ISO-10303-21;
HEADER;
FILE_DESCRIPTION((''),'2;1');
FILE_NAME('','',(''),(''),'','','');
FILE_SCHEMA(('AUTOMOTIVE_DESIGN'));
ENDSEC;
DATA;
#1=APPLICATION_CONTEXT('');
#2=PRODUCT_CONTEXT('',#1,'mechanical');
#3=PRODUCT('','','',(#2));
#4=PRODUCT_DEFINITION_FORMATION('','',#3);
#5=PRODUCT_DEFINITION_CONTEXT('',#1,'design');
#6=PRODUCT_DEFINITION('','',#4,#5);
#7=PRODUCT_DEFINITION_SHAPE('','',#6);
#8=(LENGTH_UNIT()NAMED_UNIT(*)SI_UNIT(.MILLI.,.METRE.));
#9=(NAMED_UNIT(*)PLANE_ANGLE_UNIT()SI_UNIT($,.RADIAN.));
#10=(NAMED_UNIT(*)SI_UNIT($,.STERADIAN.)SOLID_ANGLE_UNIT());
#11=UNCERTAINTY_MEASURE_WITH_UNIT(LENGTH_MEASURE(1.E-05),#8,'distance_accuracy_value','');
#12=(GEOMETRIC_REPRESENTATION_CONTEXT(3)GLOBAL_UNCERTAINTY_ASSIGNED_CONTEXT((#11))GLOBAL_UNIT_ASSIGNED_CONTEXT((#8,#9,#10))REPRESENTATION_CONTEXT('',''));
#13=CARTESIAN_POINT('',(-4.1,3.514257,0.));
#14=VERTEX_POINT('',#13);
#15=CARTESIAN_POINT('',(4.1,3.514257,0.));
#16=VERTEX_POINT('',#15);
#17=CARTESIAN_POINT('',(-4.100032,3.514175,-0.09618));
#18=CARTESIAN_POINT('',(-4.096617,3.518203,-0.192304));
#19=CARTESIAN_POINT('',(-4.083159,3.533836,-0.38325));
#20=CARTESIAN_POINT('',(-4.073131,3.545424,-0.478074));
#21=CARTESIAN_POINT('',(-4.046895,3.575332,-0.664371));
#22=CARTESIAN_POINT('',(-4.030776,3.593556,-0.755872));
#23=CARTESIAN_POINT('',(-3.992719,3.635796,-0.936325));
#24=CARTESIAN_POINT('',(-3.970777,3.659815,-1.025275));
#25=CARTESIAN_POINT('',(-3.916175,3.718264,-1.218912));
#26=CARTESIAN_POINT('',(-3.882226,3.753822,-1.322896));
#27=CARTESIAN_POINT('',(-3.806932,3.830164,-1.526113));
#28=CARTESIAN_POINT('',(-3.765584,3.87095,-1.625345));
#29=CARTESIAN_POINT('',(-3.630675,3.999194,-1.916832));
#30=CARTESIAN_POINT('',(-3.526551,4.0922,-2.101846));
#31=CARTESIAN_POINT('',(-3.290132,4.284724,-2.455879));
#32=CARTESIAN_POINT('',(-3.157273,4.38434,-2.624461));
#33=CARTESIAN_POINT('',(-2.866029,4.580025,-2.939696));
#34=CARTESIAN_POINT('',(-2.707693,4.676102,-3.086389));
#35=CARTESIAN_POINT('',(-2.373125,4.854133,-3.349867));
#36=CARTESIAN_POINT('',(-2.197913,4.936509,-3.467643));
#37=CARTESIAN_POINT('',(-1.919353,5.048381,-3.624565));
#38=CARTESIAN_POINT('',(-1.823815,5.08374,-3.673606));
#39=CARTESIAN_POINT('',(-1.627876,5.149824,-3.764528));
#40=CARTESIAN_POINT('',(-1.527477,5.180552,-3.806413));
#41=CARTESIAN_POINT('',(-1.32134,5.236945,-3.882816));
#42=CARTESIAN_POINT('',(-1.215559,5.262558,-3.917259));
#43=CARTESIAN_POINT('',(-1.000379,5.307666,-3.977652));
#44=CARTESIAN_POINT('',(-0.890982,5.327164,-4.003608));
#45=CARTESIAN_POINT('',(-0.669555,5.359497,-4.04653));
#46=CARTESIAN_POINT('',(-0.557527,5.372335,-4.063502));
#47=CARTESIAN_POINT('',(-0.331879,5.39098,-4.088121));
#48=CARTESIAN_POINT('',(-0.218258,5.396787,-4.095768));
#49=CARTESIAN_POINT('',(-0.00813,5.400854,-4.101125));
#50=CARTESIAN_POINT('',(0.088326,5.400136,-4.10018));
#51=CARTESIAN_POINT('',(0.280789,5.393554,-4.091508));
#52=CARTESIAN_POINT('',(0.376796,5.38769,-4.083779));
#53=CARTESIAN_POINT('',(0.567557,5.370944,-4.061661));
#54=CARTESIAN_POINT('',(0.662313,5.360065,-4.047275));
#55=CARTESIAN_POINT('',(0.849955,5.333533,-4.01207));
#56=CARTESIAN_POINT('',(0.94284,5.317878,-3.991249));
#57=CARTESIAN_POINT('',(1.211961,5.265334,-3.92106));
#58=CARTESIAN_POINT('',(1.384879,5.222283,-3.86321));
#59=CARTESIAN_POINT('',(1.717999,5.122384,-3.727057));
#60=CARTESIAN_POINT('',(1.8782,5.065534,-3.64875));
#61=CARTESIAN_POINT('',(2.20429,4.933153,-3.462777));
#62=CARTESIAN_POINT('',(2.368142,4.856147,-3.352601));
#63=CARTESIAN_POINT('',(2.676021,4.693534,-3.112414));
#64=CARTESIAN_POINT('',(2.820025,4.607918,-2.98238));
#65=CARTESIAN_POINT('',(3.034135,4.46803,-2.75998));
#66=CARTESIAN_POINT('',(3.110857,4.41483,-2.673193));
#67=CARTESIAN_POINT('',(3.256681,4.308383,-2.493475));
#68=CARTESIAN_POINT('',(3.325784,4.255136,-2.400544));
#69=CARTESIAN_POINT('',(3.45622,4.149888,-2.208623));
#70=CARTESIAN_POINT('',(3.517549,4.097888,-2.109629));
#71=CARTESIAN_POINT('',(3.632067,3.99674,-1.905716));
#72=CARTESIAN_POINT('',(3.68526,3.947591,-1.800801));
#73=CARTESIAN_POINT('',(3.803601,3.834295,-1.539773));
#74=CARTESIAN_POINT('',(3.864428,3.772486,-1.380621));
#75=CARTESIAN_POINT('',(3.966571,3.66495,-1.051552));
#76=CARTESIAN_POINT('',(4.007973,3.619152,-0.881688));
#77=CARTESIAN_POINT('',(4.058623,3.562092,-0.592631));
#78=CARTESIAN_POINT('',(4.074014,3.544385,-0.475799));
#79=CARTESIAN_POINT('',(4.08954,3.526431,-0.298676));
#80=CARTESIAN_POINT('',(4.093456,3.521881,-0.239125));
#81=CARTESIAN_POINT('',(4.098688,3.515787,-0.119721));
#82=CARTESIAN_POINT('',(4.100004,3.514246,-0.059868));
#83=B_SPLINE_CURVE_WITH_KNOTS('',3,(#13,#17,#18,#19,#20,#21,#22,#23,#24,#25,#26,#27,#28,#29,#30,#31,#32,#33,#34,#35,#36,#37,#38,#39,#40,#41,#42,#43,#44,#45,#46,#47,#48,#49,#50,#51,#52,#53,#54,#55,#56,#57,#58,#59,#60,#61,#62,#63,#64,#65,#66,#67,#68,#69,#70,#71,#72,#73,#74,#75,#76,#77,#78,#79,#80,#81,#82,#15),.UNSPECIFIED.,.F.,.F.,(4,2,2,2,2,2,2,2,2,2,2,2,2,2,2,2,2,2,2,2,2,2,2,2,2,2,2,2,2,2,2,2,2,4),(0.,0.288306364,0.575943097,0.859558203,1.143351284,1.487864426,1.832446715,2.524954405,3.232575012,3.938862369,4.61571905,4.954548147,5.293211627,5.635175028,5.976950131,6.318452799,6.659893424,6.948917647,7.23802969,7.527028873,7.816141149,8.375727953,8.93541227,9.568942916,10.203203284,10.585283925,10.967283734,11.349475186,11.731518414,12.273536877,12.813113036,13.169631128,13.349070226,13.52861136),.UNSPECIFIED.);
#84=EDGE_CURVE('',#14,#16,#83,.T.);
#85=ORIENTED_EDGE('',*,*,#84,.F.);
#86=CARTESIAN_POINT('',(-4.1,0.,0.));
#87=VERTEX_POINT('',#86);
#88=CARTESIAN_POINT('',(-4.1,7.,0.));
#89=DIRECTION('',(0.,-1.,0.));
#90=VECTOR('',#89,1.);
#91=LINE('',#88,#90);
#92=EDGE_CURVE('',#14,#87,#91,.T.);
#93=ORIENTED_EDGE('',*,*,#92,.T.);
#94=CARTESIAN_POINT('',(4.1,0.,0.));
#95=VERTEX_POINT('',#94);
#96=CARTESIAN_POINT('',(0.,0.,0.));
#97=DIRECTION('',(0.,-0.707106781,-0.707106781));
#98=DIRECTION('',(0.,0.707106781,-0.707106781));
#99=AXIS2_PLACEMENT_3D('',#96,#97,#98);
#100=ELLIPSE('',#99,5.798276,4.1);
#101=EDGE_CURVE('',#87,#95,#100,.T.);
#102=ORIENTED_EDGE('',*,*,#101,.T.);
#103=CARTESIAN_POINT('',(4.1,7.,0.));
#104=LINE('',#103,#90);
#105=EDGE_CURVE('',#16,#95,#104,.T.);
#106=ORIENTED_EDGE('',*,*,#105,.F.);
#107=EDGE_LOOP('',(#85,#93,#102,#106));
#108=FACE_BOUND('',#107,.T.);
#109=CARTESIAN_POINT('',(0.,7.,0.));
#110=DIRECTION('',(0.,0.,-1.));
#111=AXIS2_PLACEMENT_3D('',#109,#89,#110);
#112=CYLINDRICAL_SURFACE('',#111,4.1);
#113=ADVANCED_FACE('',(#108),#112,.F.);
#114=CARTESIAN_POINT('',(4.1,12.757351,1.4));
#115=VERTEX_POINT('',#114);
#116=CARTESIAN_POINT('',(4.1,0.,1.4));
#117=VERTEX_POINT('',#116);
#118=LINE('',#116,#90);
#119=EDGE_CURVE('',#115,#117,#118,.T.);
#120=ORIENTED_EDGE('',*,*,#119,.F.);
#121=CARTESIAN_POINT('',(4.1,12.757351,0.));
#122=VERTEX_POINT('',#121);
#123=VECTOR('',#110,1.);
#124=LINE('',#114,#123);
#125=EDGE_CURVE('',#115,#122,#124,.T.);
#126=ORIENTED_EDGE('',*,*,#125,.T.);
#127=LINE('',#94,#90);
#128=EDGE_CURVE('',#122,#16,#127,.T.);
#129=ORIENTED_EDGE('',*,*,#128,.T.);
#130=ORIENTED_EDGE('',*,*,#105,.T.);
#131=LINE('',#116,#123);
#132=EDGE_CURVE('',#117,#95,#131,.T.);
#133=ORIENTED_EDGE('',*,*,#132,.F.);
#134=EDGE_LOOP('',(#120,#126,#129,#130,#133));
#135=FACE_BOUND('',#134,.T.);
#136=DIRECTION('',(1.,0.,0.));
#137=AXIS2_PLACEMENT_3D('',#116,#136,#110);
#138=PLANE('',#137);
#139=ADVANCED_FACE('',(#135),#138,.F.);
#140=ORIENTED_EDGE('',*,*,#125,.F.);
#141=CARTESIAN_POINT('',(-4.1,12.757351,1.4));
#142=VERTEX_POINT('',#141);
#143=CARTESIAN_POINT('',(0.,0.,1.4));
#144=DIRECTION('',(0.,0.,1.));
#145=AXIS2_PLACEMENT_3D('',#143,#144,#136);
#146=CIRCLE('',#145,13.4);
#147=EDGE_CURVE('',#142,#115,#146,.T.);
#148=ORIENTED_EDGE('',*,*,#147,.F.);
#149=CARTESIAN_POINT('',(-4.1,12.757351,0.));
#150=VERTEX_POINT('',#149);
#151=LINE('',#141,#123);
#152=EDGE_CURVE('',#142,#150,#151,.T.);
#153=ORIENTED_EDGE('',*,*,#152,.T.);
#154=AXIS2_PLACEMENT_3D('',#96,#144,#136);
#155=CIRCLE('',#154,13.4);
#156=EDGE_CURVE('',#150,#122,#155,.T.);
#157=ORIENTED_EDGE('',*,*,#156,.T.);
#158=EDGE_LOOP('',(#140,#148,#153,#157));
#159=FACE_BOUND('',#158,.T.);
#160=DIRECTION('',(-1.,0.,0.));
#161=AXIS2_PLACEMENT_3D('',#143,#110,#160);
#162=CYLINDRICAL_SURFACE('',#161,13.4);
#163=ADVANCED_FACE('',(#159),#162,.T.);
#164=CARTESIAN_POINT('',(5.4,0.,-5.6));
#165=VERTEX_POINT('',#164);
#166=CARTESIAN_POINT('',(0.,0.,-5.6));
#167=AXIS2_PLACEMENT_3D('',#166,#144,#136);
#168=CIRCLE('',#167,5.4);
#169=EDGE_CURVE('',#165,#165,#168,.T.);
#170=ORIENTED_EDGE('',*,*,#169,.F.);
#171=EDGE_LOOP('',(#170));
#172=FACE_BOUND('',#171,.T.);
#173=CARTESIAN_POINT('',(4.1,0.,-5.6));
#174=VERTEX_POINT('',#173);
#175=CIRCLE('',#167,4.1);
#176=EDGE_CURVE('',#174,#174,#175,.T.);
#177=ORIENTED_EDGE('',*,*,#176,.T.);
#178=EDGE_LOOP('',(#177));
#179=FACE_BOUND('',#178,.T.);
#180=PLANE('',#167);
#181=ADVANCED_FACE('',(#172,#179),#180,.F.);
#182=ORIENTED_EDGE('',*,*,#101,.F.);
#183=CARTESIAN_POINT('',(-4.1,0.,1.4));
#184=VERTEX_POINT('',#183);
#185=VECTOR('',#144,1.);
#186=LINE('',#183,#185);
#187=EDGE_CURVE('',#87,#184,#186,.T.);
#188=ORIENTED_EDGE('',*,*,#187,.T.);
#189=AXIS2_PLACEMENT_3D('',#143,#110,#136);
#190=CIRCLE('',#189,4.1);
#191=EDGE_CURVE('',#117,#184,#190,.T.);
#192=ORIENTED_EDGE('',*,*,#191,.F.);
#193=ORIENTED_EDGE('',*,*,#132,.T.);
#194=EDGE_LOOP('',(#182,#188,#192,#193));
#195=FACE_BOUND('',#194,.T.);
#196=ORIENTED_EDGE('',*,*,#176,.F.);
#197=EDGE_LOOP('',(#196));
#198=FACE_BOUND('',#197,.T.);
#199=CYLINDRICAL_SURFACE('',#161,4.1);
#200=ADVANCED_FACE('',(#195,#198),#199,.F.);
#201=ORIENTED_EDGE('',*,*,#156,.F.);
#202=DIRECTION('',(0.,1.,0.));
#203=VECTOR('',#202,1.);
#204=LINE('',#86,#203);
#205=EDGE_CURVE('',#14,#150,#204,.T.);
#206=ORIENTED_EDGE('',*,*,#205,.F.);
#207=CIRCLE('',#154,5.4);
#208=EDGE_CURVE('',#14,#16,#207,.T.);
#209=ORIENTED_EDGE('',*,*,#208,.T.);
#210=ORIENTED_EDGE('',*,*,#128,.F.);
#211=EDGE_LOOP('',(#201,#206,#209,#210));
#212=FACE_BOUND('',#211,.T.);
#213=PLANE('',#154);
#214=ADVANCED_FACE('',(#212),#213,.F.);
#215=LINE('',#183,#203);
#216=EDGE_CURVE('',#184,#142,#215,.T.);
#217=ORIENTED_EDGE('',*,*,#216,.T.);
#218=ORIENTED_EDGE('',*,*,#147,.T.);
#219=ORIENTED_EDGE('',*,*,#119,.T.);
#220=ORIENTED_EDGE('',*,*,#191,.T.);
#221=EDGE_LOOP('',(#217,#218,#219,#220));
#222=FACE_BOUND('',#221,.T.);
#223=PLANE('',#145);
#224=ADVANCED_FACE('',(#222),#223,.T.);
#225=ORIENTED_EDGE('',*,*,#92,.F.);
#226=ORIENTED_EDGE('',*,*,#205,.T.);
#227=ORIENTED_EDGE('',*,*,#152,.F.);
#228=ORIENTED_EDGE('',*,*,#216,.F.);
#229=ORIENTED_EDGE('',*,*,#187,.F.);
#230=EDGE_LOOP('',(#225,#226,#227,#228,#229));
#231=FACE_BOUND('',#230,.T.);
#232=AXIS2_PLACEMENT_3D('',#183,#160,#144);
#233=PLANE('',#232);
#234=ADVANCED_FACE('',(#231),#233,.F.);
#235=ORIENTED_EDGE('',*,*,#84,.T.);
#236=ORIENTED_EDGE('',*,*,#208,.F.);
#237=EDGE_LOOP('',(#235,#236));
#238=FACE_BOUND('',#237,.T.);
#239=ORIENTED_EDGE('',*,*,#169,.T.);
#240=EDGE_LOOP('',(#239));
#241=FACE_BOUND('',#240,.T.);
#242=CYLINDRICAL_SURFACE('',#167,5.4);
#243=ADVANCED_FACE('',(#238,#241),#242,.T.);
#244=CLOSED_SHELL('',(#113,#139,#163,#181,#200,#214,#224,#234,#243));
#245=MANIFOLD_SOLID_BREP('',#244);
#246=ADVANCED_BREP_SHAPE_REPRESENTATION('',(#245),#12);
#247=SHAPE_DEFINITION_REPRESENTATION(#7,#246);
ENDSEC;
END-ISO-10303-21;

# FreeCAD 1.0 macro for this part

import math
import FreeCAD as App
import Part
import Sketcher

V = App.Vector

doc = App.newDocument("Part")
body = doc.addObject("PartDesign::Body", "Body")

sketch1 = doc.addObject("Sketcher::SketchObject", "Sketch")
body.addObject(sketch1)
sketch1.AttachmentSupport = (doc.XY_Plane, [""])
sketch1.MapMode = "FlatFace"
sketch1.addGeometry([
    Part.LineSegment(V(4.1, 12.8, 0), V(4.1, 0, 0)),
    Part.ArcOfCircle(Part.Circle(V(0, 0, 0), V(0, 0, 1), 4.1), math.radians(180), math.radians(360)),
    Part.LineSegment(V(-4.1, 0, 0), V(-4.1, 12.8, 0)),
    Part.ArcOfCircle(Part.Circle(V(0, 0, 0), V(0, 0, 1), 13.4), math.radians(108), math.radians(432)),
], False)
sketch1.addConstraint([
    Sketcher.Constraint("Tangent", 0, 2, 1, 2),
    Sketcher.Constraint("Tangent", 1, 1, 2, 1),
    Sketcher.Constraint("Coincident", 2, 2, 3, 1),
    Sketcher.Constraint("Coincident", 3, 2, 0, 1),
    Sketcher.Constraint("Vertical", 0),
    Sketcher.Constraint("Vertical", 2),
    Sketcher.Constraint("Coincident", 1, 3, -1, 1),
    Sketcher.Constraint("Coincident", 3, 3, -1, 1),
    Sketcher.Constraint("Radius", 1, 4.1),
    Sketcher.Constraint("Radius", 3, 13.4),
])
pad1 = doc.addObject("PartDesign::Pad", "Pad")
body.addObject(pad1)
pad1.Profile = sketch1
pad1.Length = 1.4

sketch2 = doc.addObject("Sketcher::SketchObject", "Sketch001")
body.addObject(sketch2)
sketch2.AttachmentSupport = (doc.XY_Plane, [""])
sketch2.MapMode = "FlatFace"
sketch2.AttachmentOffset = App.Placement(V(0, 0, -5.6), App.Rotation())
sketch2.addGeometry([
    Part.Circle(V(0, 0, 0), V(0, 0, 1), 5.4),
    Part.Circle(V(0, 0, 0), V(0, 0, 1), 4.1),
], False)
sketch2.addConstraint([
    Sketcher.Constraint("Coincident", 0, 3, -1, 1),
    Sketcher.Constraint("Coincident", 1, 3, -1, 1),
    Sketcher.Constraint("Diameter", 0, 10.8),
    Sketcher.Constraint("Diameter", 1, 8.2),
])
pad2 = doc.addObject("PartDesign::Pad", "Pad001")
body.addObject(pad2)
pad2.Profile = sketch2
pad2.Length = 7

sketch3 = doc.addObject("Sketcher::SketchObject", "Sketch002")
body.addObject(sketch3)
sketch3.AttachmentSupport = (doc.XZ_Plane, [""])
sketch3.MapMode = "FlatFace"
sketch3.addGeometry([
    Part.LineSegment(V(-4.1, 0, 0), V(-4.1, 1.4, 0)),
    Part.LineSegment(V(-4.1, 1.4, 0), V(4.1, 1.4, 0)),
    Part.LineSegment(V(4.1, 1.4, 0), V(4.1, 0, 0)),
    Part.ArcOfCircle(Part.Circle(V(0, 0, 0), V(0, 0, 1), 4.1), math.radians(180), math.radians(360)),
], False)
sketch3.addConstraint([
    Sketcher.Constraint("Coincident", 0, 2, 1, 1),
    Sketcher.Constraint("Coincident", 1, 2, 2, 1),
    Sketcher.Constraint("Tangent", 2, 2, 3, 2),
    Sketcher.Constraint("Tangent", 3, 1, 0, 1),
    Sketcher.Constraint("Vertical", 0),
    Sketcher.Constraint("Horizontal", 1),
    Sketcher.Constraint("Vertical", 2),
    Sketcher.Constraint("Coincident", 3, 3, -1, 1),
    Sketcher.Constraint("Radius", 3, 4.1),
    Sketcher.Constraint("DistanceY", 0, 1, 0, 2, 1.4),
])
pocket1 = doc.addObject("PartDesign::Pocket", "Pocket")
body.addObject(pocket1)
pocket1.Profile = sketch3
pocket1.Length = 7

doc.recompute()
